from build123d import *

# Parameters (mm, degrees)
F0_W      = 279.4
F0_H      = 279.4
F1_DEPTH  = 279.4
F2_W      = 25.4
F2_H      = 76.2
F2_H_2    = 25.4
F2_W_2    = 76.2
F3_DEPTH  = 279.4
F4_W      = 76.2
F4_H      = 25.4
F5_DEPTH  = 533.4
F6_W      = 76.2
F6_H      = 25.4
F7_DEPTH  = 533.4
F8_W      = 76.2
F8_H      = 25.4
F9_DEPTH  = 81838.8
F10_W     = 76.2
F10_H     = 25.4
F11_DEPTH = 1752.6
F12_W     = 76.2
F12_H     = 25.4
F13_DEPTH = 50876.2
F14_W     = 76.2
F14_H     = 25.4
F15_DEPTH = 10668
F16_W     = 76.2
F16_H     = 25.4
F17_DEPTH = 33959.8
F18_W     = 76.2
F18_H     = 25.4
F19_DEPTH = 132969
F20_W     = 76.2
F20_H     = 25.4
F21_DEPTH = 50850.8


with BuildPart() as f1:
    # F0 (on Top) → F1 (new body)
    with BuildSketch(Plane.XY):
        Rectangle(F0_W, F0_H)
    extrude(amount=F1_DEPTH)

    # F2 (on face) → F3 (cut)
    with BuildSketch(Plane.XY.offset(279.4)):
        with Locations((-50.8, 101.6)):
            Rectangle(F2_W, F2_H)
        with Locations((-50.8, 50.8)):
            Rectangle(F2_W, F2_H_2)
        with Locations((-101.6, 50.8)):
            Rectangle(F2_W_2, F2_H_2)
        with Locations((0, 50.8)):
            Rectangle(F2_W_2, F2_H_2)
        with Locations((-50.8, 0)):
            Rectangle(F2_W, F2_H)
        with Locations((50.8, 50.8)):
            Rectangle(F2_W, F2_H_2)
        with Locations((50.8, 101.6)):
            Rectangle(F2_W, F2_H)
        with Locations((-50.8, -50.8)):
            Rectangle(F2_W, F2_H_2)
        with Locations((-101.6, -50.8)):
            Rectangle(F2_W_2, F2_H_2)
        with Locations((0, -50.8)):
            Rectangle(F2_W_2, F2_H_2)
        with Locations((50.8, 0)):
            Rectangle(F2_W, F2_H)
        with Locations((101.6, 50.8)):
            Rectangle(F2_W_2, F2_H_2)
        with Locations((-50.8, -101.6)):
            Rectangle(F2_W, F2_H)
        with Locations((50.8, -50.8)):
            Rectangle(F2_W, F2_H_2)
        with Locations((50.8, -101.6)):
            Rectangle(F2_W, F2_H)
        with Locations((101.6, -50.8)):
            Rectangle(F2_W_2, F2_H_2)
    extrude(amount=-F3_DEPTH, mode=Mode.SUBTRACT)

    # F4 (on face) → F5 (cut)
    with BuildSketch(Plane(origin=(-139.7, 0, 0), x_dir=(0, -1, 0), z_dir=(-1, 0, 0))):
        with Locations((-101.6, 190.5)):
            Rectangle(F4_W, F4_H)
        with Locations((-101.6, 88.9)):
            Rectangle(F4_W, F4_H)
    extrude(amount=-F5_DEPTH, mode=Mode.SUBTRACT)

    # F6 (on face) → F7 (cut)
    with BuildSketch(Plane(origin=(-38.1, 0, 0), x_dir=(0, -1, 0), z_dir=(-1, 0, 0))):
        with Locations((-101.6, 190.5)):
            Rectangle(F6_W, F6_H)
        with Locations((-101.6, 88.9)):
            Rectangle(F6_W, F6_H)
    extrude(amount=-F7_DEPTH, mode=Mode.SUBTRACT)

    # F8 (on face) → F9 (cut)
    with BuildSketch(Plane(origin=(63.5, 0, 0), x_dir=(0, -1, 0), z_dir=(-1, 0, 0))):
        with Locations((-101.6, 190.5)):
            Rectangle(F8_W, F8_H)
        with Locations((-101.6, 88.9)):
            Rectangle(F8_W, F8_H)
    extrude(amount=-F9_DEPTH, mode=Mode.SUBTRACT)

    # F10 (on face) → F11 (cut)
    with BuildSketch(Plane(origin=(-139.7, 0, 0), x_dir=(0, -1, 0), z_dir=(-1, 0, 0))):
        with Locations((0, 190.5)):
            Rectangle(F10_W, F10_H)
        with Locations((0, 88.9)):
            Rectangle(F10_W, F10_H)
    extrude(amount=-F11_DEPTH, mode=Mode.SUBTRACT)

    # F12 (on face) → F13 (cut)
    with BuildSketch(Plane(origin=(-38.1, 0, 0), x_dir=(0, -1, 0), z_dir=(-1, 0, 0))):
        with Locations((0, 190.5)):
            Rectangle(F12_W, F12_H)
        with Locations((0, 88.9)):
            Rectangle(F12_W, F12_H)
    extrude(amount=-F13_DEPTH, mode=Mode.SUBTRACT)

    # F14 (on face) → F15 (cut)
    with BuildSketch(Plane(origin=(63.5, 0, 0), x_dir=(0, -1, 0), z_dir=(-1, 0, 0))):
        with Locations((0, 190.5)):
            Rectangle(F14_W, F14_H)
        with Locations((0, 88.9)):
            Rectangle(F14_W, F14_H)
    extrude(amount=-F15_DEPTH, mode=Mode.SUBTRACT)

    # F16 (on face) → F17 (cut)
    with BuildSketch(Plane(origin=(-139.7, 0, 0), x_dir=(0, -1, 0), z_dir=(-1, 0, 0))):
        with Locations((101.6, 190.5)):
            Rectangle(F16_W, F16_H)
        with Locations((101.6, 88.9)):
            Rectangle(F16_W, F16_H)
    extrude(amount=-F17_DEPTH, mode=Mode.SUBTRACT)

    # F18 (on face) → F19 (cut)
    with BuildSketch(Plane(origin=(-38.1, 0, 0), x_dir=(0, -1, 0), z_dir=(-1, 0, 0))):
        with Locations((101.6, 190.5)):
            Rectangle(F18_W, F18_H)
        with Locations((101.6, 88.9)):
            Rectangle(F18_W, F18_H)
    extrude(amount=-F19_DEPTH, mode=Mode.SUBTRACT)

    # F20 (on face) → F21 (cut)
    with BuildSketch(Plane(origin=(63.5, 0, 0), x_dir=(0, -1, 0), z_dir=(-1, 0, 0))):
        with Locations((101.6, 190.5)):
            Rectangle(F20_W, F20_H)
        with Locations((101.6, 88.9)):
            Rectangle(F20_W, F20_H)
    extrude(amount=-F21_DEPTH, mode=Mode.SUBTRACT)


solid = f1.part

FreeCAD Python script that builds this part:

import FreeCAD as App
import Part
import Sketcher
from FreeCAD import Vector
Q = App.Units.Quantity

doc = App.newDocument("Part")
body = doc.addObject("PartDesign::Body", "Body")
body.AllowCompound = True

sketch1 = doc.addObject("Sketcher::SketchObject", "Sketch")
body.addObject(sketch1)
sketch1.AttachmentSupport = (doc.XY_Plane, [""])
sketch1.MapMode = "FlatFace"
sketch1.addGeometry([
    Part.LineSegment(Vector(-140, 140, 0), Vector(-140, -140, 0)),
    Part.LineSegment(Vector(-140, -140, 0), Vector(140, -140, 0)),
    Part.LineSegment(Vector(140, -140, 0), Vector(140, 140, 0)),
    Part.LineSegment(Vector(140, 140, 0), Vector(-140, 140, 0)),
], False)
sketch1.addConstraint([
    Sketcher.Constraint("Coincident", 0, 2, 1, 1),
    Sketcher.Constraint("Coincident", 1, 2, 2, 1),
    Sketcher.Constraint("Coincident", 2, 2, 3, 1),
    Sketcher.Constraint("Coincident", 3, 2, 0, 1),
    Sketcher.Constraint("Vertical", 0),
    Sketcher.Constraint("Horizontal", 1),
    Sketcher.Constraint("Vertical", 2),
    Sketcher.Constraint("Horizontal", 3),
    Sketcher.Constraint("Symmetric", 0, 2, 2, 2, -1, 1),
    Sketcher.Constraint("Equal", 3, 0),
    Sketcher.Constraint("DistanceX", 1, 1, 1, 2, Q("11 in")),
])
pad1 = doc.addObject("PartDesign::Pad", "Pad")
body.addObject(pad1)
pad1.Profile = sketch1
pad1.Length = Q("11 in")

sketch2 = doc.addObject("Sketcher::SketchObject", "Sketch001")
body.addObject(sketch2)
sketch2.AttachmentSupport = (doc.XY_Plane, [""])
sketch2.MapMode = "FlatFace"
sketch2.AttachmentOffset = App.Placement(Vector(0, 0, 11 * 25.4), App.Rotation())
sketch2.addGeometry([
    Part.LineSegment(Vector(-38, -64, 0), Vector(38, -64, 0)),
    Part.LineSegment(Vector(38, -64, 0), Vector(38, -140, 0)),
    Part.LineSegment(Vector(38, -140, 0), Vector(64, -140, 0)),
    Part.LineSegment(Vector(64, -140, 0), Vector(64, -64, 0)),
    Part.LineSegment(Vector(64, -64, 0), Vector(140, -64, 0)),
    Part.LineSegment(Vector(140, -64, 0), Vector(140, -38, 0)),
    Part.LineSegment(Vector(140, -38, 0), Vector(64, -38, 0)),
    Part.LineSegment(Vector(64, -38, 0), Vector(64, 38, 0)),
    Part.LineSegment(Vector(64, 38, 0), Vector(140, 38, 0)),
    Part.LineSegment(Vector(140, 38, 0), Vector(140, 64, 0)),
    Part.LineSegment(Vector(140, 64, 0), Vector(64, 64, 0)),
    Part.LineSegment(Vector(64, 64, 0), Vector(64, 140, 0)),
    Part.LineSegment(Vector(64, 140, 0), Vector(38, 140, 0)),
    Part.LineSegment(Vector(38, 140, 0), Vector(38, 64, 0)),
    Part.LineSegment(Vector(38, 64, 0), Vector(-38, 64, 0)),
    Part.LineSegment(Vector(-38, 64, 0), Vector(-38, 140, 0)),
    Part.LineSegment(Vector(-38, 140, 0), Vector(-64, 140, 0)),
    Part.LineSegment(Vector(-64, 140, 0), Vector(-64, 64, 0)),
    Part.LineSegment(Vector(-64, 64, 0), Vector(-140, 64, 0)),
    Part.LineSegment(Vector(-140, 64, 0), Vector(-140, 38, 0)),
    Part.LineSegment(Vector(-140, 38, 0), Vector(-64, 38, 0)),
    Part.LineSegment(Vector(-64, 38, 0), Vector(-64, -38, 0)),
    Part.LineSegment(Vector(-64, -38, 0), Vector(-140, -38, 0)),
    Part.LineSegment(Vector(-140, -38, 0), Vector(-140, -64, 0)),
    Part.LineSegment(Vector(-140, -64, 0), Vector(-64, -64, 0)),
    Part.LineSegment(Vector(-64, -64, 0), Vector(-64, -140, 0)),
    Part.LineSegment(Vector(-64, -140, 0), Vector(-38, -140, 0)),
    Part.LineSegment(Vector(-38, -140, 0), Vector(-38, -64, 0)),
    Part.LineSegment(Vector(38, -38, 0), Vector(-38, -38, 0)),
    Part.LineSegment(Vector(-38, -38, 0), Vector(-38, 38, 0)),
    Part.LineSegment(Vector(-38, 38, 0), Vector(38, 38, 0)),
    Part.LineSegment(Vector(38, 38, 0), Vector(38, -38, 0)),
], False)
sketch2.addConstraint([
    Sketcher.Constraint("Coincident", 0, 2, 1, 1),
    Sketcher.Constraint("Coincident", 1, 2, 2, 1),
    Sketcher.Constraint("Coincident", 2, 2, 3, 1),
    Sketcher.Constraint("Coincident", 3, 2, 4, 1),
    Sketcher.Constraint("Coincident", 4, 2, 5, 1),
    Sketcher.Constraint("Coincident", 5, 2, 6, 1),
    Sketcher.Constraint("Coincident", 6, 2, 7, 1),
    Sketcher.Constraint("Coincident", 7, 2, 8, 1),
    Sketcher.Constraint("Coincident", 8, 2, 9, 1),
    Sketcher.Constraint("Coincident", 9, 2, 10, 1),
    Sketcher.Constraint("Coincident", 10, 2, 11, 1),
    Sketcher.Constraint("Coincident", 11, 2, 12, 1),
    Sketcher.Constraint("Coincident", 12, 2, 13, 1),
    Sketcher.Constraint("Coincident", 13, 2, 14, 1),
    Sketcher.Constraint("Coincident", 14, 2, 15, 1),
    Sketcher.Constraint("Coincident", 15, 2, 16, 1),
    Sketcher.Constraint("Coincident", 16, 2, 17, 1),
    Sketcher.Constraint("Coincident", 17, 2, 18, 1),
    Sketcher.Constraint("Coincident", 18, 2, 19, 1),
    Sketcher.Constraint("Coincident", 19, 2, 20, 1),
    Sketcher.Constraint("Coincident", 20, 2, 21, 1),
    Sketcher.Constraint("Coincident", 21, 2, 22, 1),
    Sketcher.Constraint("Coincident", 22, 2, 23, 1),
    Sketcher.Constraint("Coincident", 23, 2, 24, 1),
    Sketcher.Constraint("Coincident", 24, 2, 25, 1),
    Sketcher.Constraint("Coincident", 25, 2, 26, 1),
    Sketcher.Constraint("Coincident", 26, 2, 27, 1),
    Sketcher.Constraint("Coincident", 27, 2, 0, 1),
    Sketcher.Constraint("Coincident", 28, 2, 29, 1),
    Sketcher.Constraint("Coincident", 29, 2, 30, 1),
    Sketcher.Constraint("Coincident", 30, 2, 31, 1),
    Sketcher.Constraint("Coincident", 31, 2, 28, 1),
    Sketcher.Constraint("Horizontal", 0),
    Sketcher.Constraint("Vertical", 1),
    Sketcher.Constraint("Horizontal", 2),
    Sketcher.Constraint("Vertical", 3),
    Sketcher.Constraint("Horizontal", 4),
    Sketcher.Constraint("Vertical", 5),
    Sketcher.Constraint("Horizontal", 6),
    Sketcher.Constraint("Vertical", 7),
    Sketcher.Constraint("Horizontal", 8),
    Sketcher.Constraint("Vertical", 9),
    Sketcher.Constraint("Horizontal", 10),
    Sketcher.Constraint("Vertical", 11),
    Sketcher.Constraint("Horizontal", 12),
    Sketcher.Constraint("Vertical", 13),
    Sketcher.Constraint("Horizontal", 14),
    Sketcher.Constraint("Vertical", 15),
    Sketcher.Constraint("Horizontal", 16),
    Sketcher.Constraint("Vertical", 17),
    Sketcher.Constraint("Horizontal", 18),
    Sketcher.Constraint("Vertical", 19),
    Sketcher.Constraint("Horizontal", 20),
    Sketcher.Constraint("Vertical", 21),
    Sketcher.Constraint("Horizontal", 22),
    Sketcher.Constraint("Vertical", 23),
    Sketcher.Constraint("Horizontal", 24),
    Sketcher.Constraint("Vertical", 25),
    Sketcher.Constraint("Horizontal", 26),
    Sketcher.Constraint("Vertical", 27),
    Sketcher.Constraint("Horizontal", 28),
    Sketcher.Constraint("Vertical", 29),
    Sketcher.Constraint("Horizontal", 30),
    Sketcher.Constraint("Vertical", 31),
    Sketcher.Constraint("Symmetric", 0, 2, 14, 2, -1, 1),
    Sketcher.Constraint("Symmetric", 2, 2, 16, 2, -1, 1),
    Sketcher.Constraint("Symmetric", 4, 2, 18, 2, -1, 1),
    Sketcher.Constraint("Symmetric", 6, 2, 20, 2, -1, 1),
    Sketcher.Constraint("Symmetric", 8, 2, 22, 2, -1, 1),
    Sketcher.Constraint("Symmetric", 10, 2, 24, 2, -1, 1),
    Sketcher.Constraint("Symmetric", 12, 2, 26, 2, -1, 1),
    Sketcher.Constraint("Symmetric", 28, 2, 30, 2, -1, 1),
    Sketcher.Constraint("Symmetric", 12, 2, 15, 2, -2),
    Sketcher.Constraint("Symmetric", 10, 2, 17, 2, -2),
    Sketcher.Constraint("Symmetric", 8, 2, 19, 2, -2),
    Sketcher.Constraint("Horizontal", 0, 2, 3, 2),
    Sketcher.Constraint("Horizontal", 22, 2, 28, 2),
    Sketcher.Constraint("Vertical", 3, 2, 6, 2),
    Sketcher.Constraint("Vertical", 27, 2, 28, 2),
    Sketcher.Constraint("Equal", 0, 4),
    Sketcher.Constraint("Equal", 30, 1),
    Sketcher.Constraint("Equal", 26, 5),
    Sketcher.Constraint("Equal", 3, 7),
    Sketcher.Constraint("DistanceX", 0, 1, 0, 2, Q("3 in")),
    Sketcher.Constraint("DistanceX", 2, 1, 2, 2, Q("1 in")),
])
pocket1 = doc.addObject("PartDesign::Pocket", "Pocket")
body.addObject(pocket1)
pocket1.Profile = sketch2
pocket1.Length = Q("11 in")

sketch3 = doc.addObject("Sketcher::SketchObject", "Sketch002")
body.addObject(sketch3)
sketch3.AttachmentSupport = (doc.YZ_Plane, [""])
sketch3.MapMode = "FlatFace"
sketch3.AttachmentOffset = App.Placement(Vector(0, 0, -5.5 * 25.4), App.Rotation())
sketch3.addGeometry([
    Part.LineSegment(Vector(140, 203, 0), Vector(140, 178, 0)),
    Part.LineSegment(Vector(140, 178, 0), Vector(64, 178, 0)),
    Part.LineSegment(Vector(64, 178, 0), Vector(64, 203, 0)),
    Part.LineSegment(Vector(64, 203, 0), Vector(140, 203, 0)),
    Part.LineSegment(Vector(140, 102, 0), Vector(140, 76, 0)),
    Part.LineSegment(Vector(140, 76, 0), Vector(64, 76, 0)),
    Part.LineSegment(Vector(64, 76, 0), Vector(64, 102, 0)),
    Part.LineSegment(Vector(64, 102, 0), Vector(140, 102, 0)),
], False)
sketch3.addConstraint([
    Sketcher.Constraint("Coincident", 0, 2, 1, 1),
    Sketcher.Constraint("Coincident", 1, 2, 2, 1),
    Sketcher.Constraint("Coincident", 2, 2, 3, 1),
    Sketcher.Constraint("Coincident", 3, 2, 0, 1),
    Sketcher.Constraint("Coincident", 4, 2, 5, 1),
    Sketcher.Constraint("Coincident", 5, 2, 6, 1),
    Sketcher.Constraint("Coincident", 6, 2, 7, 1),
    Sketcher.Constraint("Coincident", 7, 2, 4, 1),
    Sketcher.Constraint("Vertical", 0),
    Sketcher.Constraint("Horizontal", 1),
    Sketcher.Constraint("Vertical", 2),
    Sketcher.Constraint("Horizontal", 3),
    Sketcher.Constraint("Vertical", 4),
    Sketcher.Constraint("Horizontal", 5),
    Sketcher.Constraint("Vertical", 6),
    Sketcher.Constraint("Horizontal", 7),
    Sketcher.Constraint("Vertical", 3, 2, 4, 2),
    Sketcher.Constraint("Vertical", 2, 2, 5, 2),
    Sketcher.Constraint("Equal", 2, 4),
    Sketcher.Constraint("DistanceX", 1, 2, 1, 1, Q("3 in")),
    Sketcher.Constraint("DistanceY", 0, 2, 0, 1, Q("1 in")),
    Sketcher.Constraint("DistanceY", -1, 1, 0, 2, Q("7 in")),
    Sketcher.Constraint("DistanceY", -1, 1, 4, 2, Q("3 in")),
    Sketcher.Constraint("DistanceX", -1, 1, 0, 2, Q("5.5 in")),
])
pocket2 = doc.addObject("PartDesign::Pocket", "Pocket001")
body.addObject(pocket2)
pocket2.Profile = sketch3
pocket2.Length = Q("21 in")
pocket2.Reversed = True

sketch4 = doc.addObject("Sketcher::SketchObject", "Sketch003")
body.addObject(sketch4)
sketch4.AttachmentSupport = (doc.YZ_Plane, [""])
sketch4.MapMode = "FlatFace"
sketch4.AttachmentOffset = App.Placement(Vector(0, 0, -1.5 * 25.4), App.Rotation())
sketch4.addGeometry([
    Part.LineSegment(Vector(140, 203, 0), Vector(140, 178, 0)),
    Part.LineSegment(Vector(140, 178, 0), Vector(64, 178, 0)),
    Part.LineSegment(Vector(64, 178, 0), Vector(64, 203, 0)),
    Part.LineSegment(Vector(64, 203, 0), Vector(140, 203, 0)),
    Part.LineSegment(Vector(140, 102, 0), Vector(140, 76, 0)),
    Part.LineSegment(Vector(140, 76, 0), Vector(64, 76, 0)),
    Part.LineSegment(Vector(64, 76, 0), Vector(64, 102, 0)),
    Part.LineSegment(Vector(64, 102, 0), Vector(140, 102, 0)),
], False)
sketch4.addConstraint([
    Sketcher.Constraint("Coincident", 0, 2, 1, 1),
    Sketcher.Constraint("Coincident", 1, 2, 2, 1),
    Sketcher.Constraint("Coincident", 2, 2, 3, 1),
    Sketcher.Constraint("Coincident", 3, 2, 0, 1),
    Sketcher.Constraint("Coincident", 4, 2, 5, 1),
    Sketcher.Constraint("Coincident", 5, 2, 6, 1),
    Sketcher.Constraint("Coincident", 6, 2, 7, 1),
    Sketcher.Constraint("Coincident", 7, 2, 4, 1),
    Sketcher.Constraint("Vertical", 0),
    Sketcher.Constraint("Horizontal", 1),
    Sketcher.Constraint("Vertical", 2),
    Sketcher.Constraint("Horizontal", 3),
    Sketcher.Constraint("Vertical", 4),
    Sketcher.Constraint("Horizontal", 5),
    Sketcher.Constraint("Vertical", 6),
    Sketcher.Constraint("Horizontal", 7),
    Sketcher.Constraint("Vertical", 3, 2, 4, 2),
    Sketcher.Constraint("Vertical", 2, 2, 5, 2),
    Sketcher.Constraint("Equal", 2, 4),
    Sketcher.Constraint("DistanceX", 1, 2, 1, 1, Q("3 in")),
    Sketcher.Constraint("DistanceY", 0, 2, 0, 1, Q("1 in")),
    Sketcher.Constraint("DistanceY", -1, 1, 0, 2, Q("7 in")),
    Sketcher.Constraint("DistanceY", -1, 1, 4, 2, Q("3 in")),
    Sketcher.Constraint("DistanceX", -1, 1, 0, 2, Q("5.5 in")),
])
pocket3 = doc.addObject("PartDesign::Pocket", "Pocket002")
body.addObject(pocket3)
pocket3.Profile = sketch4
pocket3.Length = Q("21 in")
pocket3.Reversed = True

sketch5 = doc.addObject("Sketcher::SketchObject", "Sketch004")
body.addObject(sketch5)
sketch5.AttachmentSupport = (doc.YZ_Plane, [""])
sketch5.MapMode = "FlatFace"
sketch5.AttachmentOffset = App.Placement(Vector(0, 0, 2.5 * 25.4), App.Rotation())
sketch5.addGeometry([
    Part.LineSegment(Vector(140, 203, 0), Vector(140, 178, 0)),
    Part.LineSegment(Vector(140, 178, 0), Vector(64, 178, 0)),
    Part.LineSegment(Vector(64, 178, 0), Vector(64, 203, 0)),
    Part.LineSegment(Vector(64, 203, 0), Vector(140, 203, 0)),
    Part.LineSegment(Vector(140, 102, 0), Vector(140, 76, 0)),
    Part.LineSegment(Vector(140, 76, 0), Vector(64, 76, 0)),
    Part.LineSegment(Vector(64, 76, 0), Vector(64, 102, 0)),
    Part.LineSegment(Vector(64, 102, 0), Vector(140, 102, 0)),
], False)
sketch5.addConstraint([
    Sketcher.Constraint("Coincident", 0, 2, 1, 1),
    Sketcher.Constraint("Coincident", 1, 2, 2, 1),
    Sketcher.Constraint("Coincident", 2, 2, 3, 1),
    Sketcher.Constraint("Coincident", 3, 2, 0, 1),
    Sketcher.Constraint("Coincident", 4, 2, 5, 1),
    Sketcher.Constraint("Coincident", 5, 2, 6, 1),
    Sketcher.Constraint("Coincident", 6, 2, 7, 1),
    Sketcher.Constraint("Coincident", 7, 2, 4, 1),
    Sketcher.Constraint("Vertical", 0),
    Sketcher.Constraint("Horizontal", 1),
    Sketcher.Constraint("Vertical", 2),
    Sketcher.Constraint("Horizontal", 3),
    Sketcher.Constraint("Vertical", 4),
    Sketcher.Constraint("Horizontal", 5),
    Sketcher.Constraint("Vertical", 6),
    Sketcher.Constraint("Horizontal", 7),
    Sketcher.Constraint("Vertical", 3, 2, 4, 2),
    Sketcher.Constraint("Vertical", 2, 2, 5, 2),
    Sketcher.Constraint("Equal", 2, 4),
    Sketcher.Constraint("DistanceX", 1, 2, 1, 1, Q("3 in")),
    Sketcher.Constraint("DistanceY", 0, 2, 0, 1, Q("1 in")),
    Sketcher.Constraint("DistanceY", -1, 1, 0, 2, Q("7 in")),
    Sketcher.Constraint("DistanceY", -1, 1, 4, 2, Q("3 in")),
    Sketcher.Constraint("DistanceX", -1, 1, 0, 2, Q("5.5 in")),
])
pocket4 = doc.addObject("PartDesign::Pocket", "Pocket003")
body.addObject(pocket4)
pocket4.Profile = sketch5
pocket4.Length = Q("3222 in")
pocket4.Reversed = True

sketch6 = doc.addObject("Sketcher::SketchObject", "Sketch005")
body.addObject(sketch6)
sketch6.AttachmentSupport = (doc.YZ_Plane, [""])
sketch6.MapMode = "FlatFace"
sketch6.AttachmentOffset = App.Placement(Vector(0, 0, -5.5 * 25.4), App.Rotation())
sketch6.addGeometry([
    Part.LineSegment(Vector(38, 203, 0), Vector(38, 178, 0)),
    Part.LineSegment(Vector(38, 178, 0), Vector(-38, 178, 0)),
    Part.LineSegment(Vector(-38, 178, 0), Vector(-38, 203, 0)),
    Part.LineSegment(Vector(-38, 203, 0), Vector(38, 203, 0)),
    Part.LineSegment(Vector(38, 102, 0), Vector(38, 76, 0)),
    Part.LineSegment(Vector(38, 76, 0), Vector(-38, 76, 0)),
    Part.LineSegment(Vector(-38, 76, 0), Vector(-38, 102, 0)),
    Part.LineSegment(Vector(-38, 102, 0), Vector(38, 102, 0)),
], False)
sketch6.addConstraint([
    Sketcher.Constraint("Coincident", 0, 2, 1, 1),
    Sketcher.Constraint("Coincident", 1, 2, 2, 1),
    Sketcher.Constraint("Coincident", 2, 2, 3, 1),
    Sketcher.Constraint("Coincident", 3, 2, 0, 1),
    Sketcher.Constraint("Coincident", 4, 2, 5, 1),
    Sketcher.Constraint("Coincident", 5, 2, 6, 1),
    Sketcher.Constraint("Coincident", 6, 2, 7, 1),
    Sketcher.Constraint("Coincident", 7, 2, 4, 1),
    Sketcher.Constraint("Vertical", 0),
    Sketcher.Constraint("Horizontal", 1),
    Sketcher.Constraint("Vertical", 2),
    Sketcher.Constraint("Horizontal", 3),
    Sketcher.Constraint("Vertical", 4),
    Sketcher.Constraint("Horizontal", 5),
    Sketcher.Constraint("Vertical", 6),
    Sketcher.Constraint("Horizontal", 7),
    Sketcher.Constraint("Vertical", 3, 2, 4, 2),
    Sketcher.Constraint("Vertical", 2, 2, 5, 2),
    Sketcher.Constraint("Equal", 2, 4),
    Sketcher.Constraint("DistanceX", 1, 2, 1, 1, Q("3 in")),
    Sketcher.Constraint("DistanceY", 0, 2, 0, 1, Q("1 in")),
    Sketcher.Constraint("DistanceY", -1, 1, 0, 2, Q("7 in")),
    Sketcher.Constraint("DistanceY", -1, 1, 4, 2, Q("3 in")),
    Sketcher.Constraint("DistanceX", -1, 1, 0, 2, Q("1.5 in")),
])
pocket5 = doc.addObject("PartDesign::Pocket", "Pocket004")
body.addObject(pocket5)
pocket5.Profile = sketch6
pocket5.Length = Q("69 in")
pocket5.Reversed = True

sketch7 = doc.addObject("Sketcher::SketchObject", "Sketch006")
body.addObject(sketch7)
sketch7.AttachmentSupport = (doc.YZ_Plane, [""])
sketch7.MapMode = "FlatFace"
sketch7.AttachmentOffset = App.Placement(Vector(0, 0, -1.5 * 25.4), App.Rotation())
sketch7.addGeometry([
    Part.LineSegment(Vector(38, 203, 0), Vector(38, 178, 0)),
    Part.LineSegment(Vector(38, 178, 0), Vector(-38, 178, 0)),
    Part.LineSegment(Vector(-38, 178, 0), Vector(-38, 203, 0)),
    Part.LineSegment(Vector(-38, 203, 0), Vector(38, 203, 0)),
    Part.LineSegment(Vector(38, 102, 0), Vector(38, 76, 0)),
    Part.LineSegment(Vector(38, 76, 0), Vector(-38, 76, 0)),
    Part.LineSegment(Vector(-38, 76, 0), Vector(-38, 102, 0)),
    Part.LineSegment(Vector(-38, 102, 0), Vector(38, 102, 0)),
], False)
sketch7.addConstraint([
    Sketcher.Constraint("Coincident", 0, 2, 1, 1),
    Sketcher.Constraint("Coincident", 1, 2, 2, 1),
    Sketcher.Constraint("Coincident", 2, 2, 3, 1),
    Sketcher.Constraint("Coincident", 3, 2, 0, 1),
    Sketcher.Constraint("Coincident", 4, 2, 5, 1),
    Sketcher.Constraint("Coincident", 5, 2, 6, 1),
    Sketcher.Constraint("Coincident", 6, 2, 7, 1),
    Sketcher.Constraint("Coincident", 7, 2, 4, 1),
    Sketcher.Constraint("Vertical", 0),
    Sketcher.Constraint("Horizontal", 1),
    Sketcher.Constraint("Vertical", 2),
    Sketcher.Constraint("Horizontal", 3),
    Sketcher.Constraint("Vertical", 4),
    Sketcher.Constraint("Horizontal", 5),
    Sketcher.Constraint("Vertical", 6),
    Sketcher.Constraint("Horizontal", 7),
    Sketcher.Constraint("Vertical", 3, 2, 4, 2),
    Sketcher.Constraint("Vertical", 2, 2, 5, 2),
    Sketcher.Constraint("Equal", 2, 4),
    Sketcher.Constraint("DistanceX", 1, 2, 1, 1, Q("3 in")),
    Sketcher.Constraint("DistanceY", 0, 2, 0, 1, Q("1 in")),
    Sketcher.Constraint("DistanceY", -1, 1, 0, 2, Q("7 in")),
    Sketcher.Constraint("DistanceY", -1, 1, 4, 2, Q("3 in")),
    Sketcher.Constraint("DistanceX", -1, 1, 0, 2, Q("1.5 in")),
])
pocket6 = doc.addObject("PartDesign::Pocket", "Pocket005")
body.addObject(pocket6)
pocket6.Profile = sketch7
pocket6.Length = Q("2003 in")
pocket6.Reversed = True

sketch8 = doc.addObject("Sketcher::SketchObject", "Sketch007")
body.addObject(sketch8)
sketch8.AttachmentSupport = (doc.YZ_Plane, [""])
sketch8.MapMode = "FlatFace"
sketch8.AttachmentOffset = App.Placement(Vector(0, 0, 2.5 * 25.4), App.Rotation())
sketch8.addGeometry([
    Part.LineSegment(Vector(38, 203, 0), Vector(38, 178, 0)),
    Part.LineSegment(Vector(38, 178, 0), Vector(-38, 178, 0)),
    Part.LineSegment(Vector(-38, 178, 0), Vector(-38, 203, 0)),
    Part.LineSegment(Vector(-38, 203, 0), Vector(38, 203, 0)),
    Part.LineSegment(Vector(38, 102, 0), Vector(38, 76, 0)),
    Part.LineSegment(Vector(38, 76, 0), Vector(-38, 76, 0)),
    Part.LineSegment(Vector(-38, 76, 0), Vector(-38, 102, 0)),
    Part.LineSegment(Vector(-38, 102, 0), Vector(38, 102, 0)),
], False)
sketch8.addConstraint([
    Sketcher.Constraint("Coincident", 0, 2, 1, 1),
    Sketcher.Constraint("Coincident", 1, 2, 2, 1),
    Sketcher.Constraint("Coincident", 2, 2, 3, 1),
    Sketcher.Constraint("Coincident", 3, 2, 0, 1),
    Sketcher.Constraint("Coincident", 4, 2, 5, 1),
    Sketcher.Constraint("Coincident", 5, 2, 6, 1),
    Sketcher.Constraint("Coincident", 6, 2, 7, 1),
    Sketcher.Constraint("Coincident", 7, 2, 4, 1),
    Sketcher.Constraint("Vertical", 0),
    Sketcher.Constraint("Horizontal", 1),
    Sketcher.Constraint("Vertical", 2),
    Sketcher.Constraint("Horizontal", 3),
    Sketcher.Constraint("Vertical", 4),
    Sketcher.Constraint("Horizontal", 5),
    Sketcher.Constraint("Vertical", 6),
    Sketcher.Constraint("Horizontal", 7),
    Sketcher.Constraint("Vertical", 3, 2, 4, 2),
    Sketcher.Constraint("Vertical", 2, 2, 5, 2),
    Sketcher.Constraint("Equal", 2, 4),
    Sketcher.Constraint("DistanceX", 1, 2, 1, 1, Q("3 in")),
    Sketcher.Constraint("DistanceY", 0, 2, 0, 1, Q("1 in")),
    Sketcher.Constraint("DistanceY", -1, 1, 0, 2, Q("7 in")),
    Sketcher.Constraint("DistanceY", -1, 1, 4, 2, Q("3 in")),
    Sketcher.Constraint("DistanceX", -1, 1, 0, 2, Q("1.5 in")),
])
pocket7 = doc.addObject("PartDesign::Pocket", "Pocket006")
body.addObject(pocket7)
pocket7.Profile = sketch8
pocket7.Length = Q("420 in")
pocket7.Reversed = True

sketch9 = doc.addObject("Sketcher::SketchObject", "Sketch008")
body.addObject(sketch9)
sketch9.AttachmentSupport = (doc.YZ_Plane, [""])
sketch9.MapMode = "FlatFace"
sketch9.AttachmentOffset = App.Placement(Vector(0, 0, -5.5 * 25.4), App.Rotation())
sketch9.addGeometry([
    Part.LineSegment(Vector(-64, 203, 0), Vector(-64, 178, 0)),
    Part.LineSegment(Vector(-64, 178, 0), Vector(-140, 178, 0)),
    Part.LineSegment(Vector(-140, 178, 0), Vector(-140, 203, 0)),
    Part.LineSegment(Vector(-140, 203, 0), Vector(-64, 203, 0)),
    Part.LineSegment(Vector(-64, 102, 0), Vector(-64, 76, 0)),
    Part.LineSegment(Vector(-64, 76, 0), Vector(-140, 76, 0)),
    Part.LineSegment(Vector(-140, 76, 0), Vector(-140, 102, 0)),
    Part.LineSegment(Vector(-140, 102, 0), Vector(-64, 102, 0)),
], False)
sketch9.addConstraint([
    Sketcher.Constraint("Coincident", 0, 2, 1, 1),
    Sketcher.Constraint("Coincident", 1, 2, 2, 1),
    Sketcher.Constraint("Coincident", 2, 2, 3, 1),
    Sketcher.Constraint("Coincident", 3, 2, 0, 1),
    Sketcher.Constraint("Coincident", 4, 2, 5, 1),
    Sketcher.Constraint("Coincident", 5, 2, 6, 1),
    Sketcher.Constraint("Coincident", 6, 2, 7, 1),
    Sketcher.Constraint("Coincident", 7, 2, 4, 1),
    Sketcher.Constraint("Vertical", 0),
    Sketcher.Constraint("Horizontal", 1),
    Sketcher.Constraint("Vertical", 2),
    Sketcher.Constraint("Horizontal", 3),
    Sketcher.Constraint("Vertical", 4),
    Sketcher.Constraint("Horizontal", 5),
    Sketcher.Constraint("Vertical", 6),
    Sketcher.Constraint("Horizontal", 7),
    Sketcher.Constraint("Vertical", 3, 2, 4, 2),
    Sketcher.Constraint("Vertical", 2, 2, 5, 2),
    Sketcher.Constraint("Equal", 2, 4),
    Sketcher.Constraint("DistanceX", 1, 2, 1, 1, Q("3 in")),
    Sketcher.Constraint("DistanceY", 0, 2, 0, 1, Q("1 in")),
    Sketcher.Constraint("DistanceY", -1, 1, 0, 2, Q("7 in")),
    Sketcher.Constraint("DistanceY", -1, 1, 4, 2, Q("3 in")),
    Sketcher.Constraint("DistanceX", 0, 2, -1, 1, Q("2.5 in")),
])
pocket8 = doc.addObject("PartDesign::Pocket", "Pocket007")
body.addObject(pocket8)
pocket8.Profile = sketch9
pocket8.Length = Q("1337 in")
pocket8.Reversed = True

sketch10 = doc.addObject("Sketcher::SketchObject", "Sketch009")
body.addObject(sketch10)
sketch10.AttachmentSupport = (doc.YZ_Plane, [""])
sketch10.MapMode = "FlatFace"
sketch10.AttachmentOffset = App.Placement(Vector(0, 0, -1.5 * 25.4), App.Rotation())
sketch10.addGeometry([
    Part.LineSegment(Vector(-64, 203, 0), Vector(-64, 178, 0)),
    Part.LineSegment(Vector(-64, 178, 0), Vector(-140, 178, 0)),
    Part.LineSegment(Vector(-140, 178, 0), Vector(-140, 203, 0)),
    Part.LineSegment(Vector(-140, 203, 0), Vector(-64, 203, 0)),
    Part.LineSegment(Vector(-64, 102, 0), Vector(-64, 76, 0)),
    Part.LineSegment(Vector(-64, 76, 0), Vector(-140, 76, 0)),
    Part.LineSegment(Vector(-140, 76, 0), Vector(-140, 102, 0)),
    Part.LineSegment(Vector(-140, 102, 0), Vector(-64, 102, 0)),
], False)
sketch10.addConstraint([
    Sketcher.Constraint("Coincident", 0, 2, 1, 1),
    Sketcher.Constraint("Coincident", 1, 2, 2, 1),
    Sketcher.Constraint("Coincident", 2, 2, 3, 1),
    Sketcher.Constraint("Coincident", 3, 2, 0, 1),
    Sketcher.Constraint("Coincident", 4, 2, 5, 1),
    Sketcher.Constraint("Coincident", 5, 2, 6, 1),
    Sketcher.Constraint("Coincident", 6, 2, 7, 1),
    Sketcher.Constraint("Coincident", 7, 2, 4, 1),
    Sketcher.Constraint("Vertical", 0),
    Sketcher.Constraint("Horizontal", 1),
    Sketcher.Constraint("Vertical", 2),
    Sketcher.Constraint("Horizontal", 3),
    Sketcher.Constraint("Vertical", 4),
    Sketcher.Constraint("Horizontal", 5),
    Sketcher.Constraint("Vertical", 6),
    Sketcher.Constraint("Horizontal", 7),
    Sketcher.Constraint("Vertical", 3, 2, 4, 2),
    Sketcher.Constraint("Vertical", 2, 2, 5, 2),
    Sketcher.Constraint("Equal", 2, 4),
    Sketcher.Constraint("DistanceX", 1, 2, 1, 1, Q("3 in")),
    Sketcher.Constraint("DistanceY", 0, 2, 0, 1, Q("1 in")),
    Sketcher.Constraint("DistanceY", -1, 1, 0, 2, Q("7 in")),
    Sketcher.Constraint("DistanceY", -1, 1, 4, 2, Q("3 in")),
    Sketcher.Constraint("DistanceX", 0, 2, -1, 1, Q("2.5 in")),
])
pocket9 = doc.addObject("PartDesign::Pocket", "Pocket008")
body.addObject(pocket9)
pocket9.Profile = sketch10
pocket9.Length = Q("5235 in")
pocket9.Reversed = True

sketch11 = doc.addObject("Sketcher::SketchObject", "Sketch010")
body.addObject(sketch11)
sketch11.AttachmentSupport = (doc.YZ_Plane, [""])
sketch11.MapMode = "FlatFace"
sketch11.AttachmentOffset = App.Placement(Vector(0, 0, 2.5 * 25.4), App.Rotation())
sketch11.addGeometry([
    Part.LineSegment(Vector(-64, 203, 0), Vector(-64, 178, 0)),
    Part.LineSegment(Vector(-64, 178, 0), Vector(-140, 178, 0)),
    Part.LineSegment(Vector(-140, 178, 0), Vector(-140, 203, 0)),
    Part.LineSegment(Vector(-140, 203, 0), Vector(-64, 203, 0)),
    Part.LineSegment(Vector(-64, 102, 0), Vector(-64, 76, 0)),
    Part.LineSegment(Vector(-64, 76, 0), Vector(-140, 76, 0)),
    Part.LineSegment(Vector(-140, 76, 0), Vector(-140, 102, 0)),
    Part.LineSegment(Vector(-140, 102, 0), Vector(-64, 102, 0)),
], False)
sketch11.addConstraint([
    Sketcher.Constraint("Coincident", 0, 2, 1, 1),
    Sketcher.Constraint("Coincident", 1, 2, 2, 1),
    Sketcher.Constraint("Coincident", 2, 2, 3, 1),
    Sketcher.Constraint("Coincident", 3, 2, 0, 1),
    Sketcher.Constraint("Coincident", 4, 2, 5, 1),
    Sketcher.Constraint("Coincident", 5, 2, 6, 1),
    Sketcher.Constraint("Coincident", 6, 2, 7, 1),
    Sketcher.Constraint("Coincident", 7, 2, 4, 1),
    Sketcher.Constraint("Vertical", 0),
    Sketcher.Constraint("Horizontal", 1),
    Sketcher.Constraint("Vertical", 2),
    Sketcher.Constraint("Horizontal", 3),
    Sketcher.Constraint("Vertical", 4),
    Sketcher.Constraint("Horizontal", 5),
    Sketcher.Constraint("Vertical", 6),
    Sketcher.Constraint("Horizontal", 7),
    Sketcher.Constraint("Vertical", 3, 2, 4, 2),
    Sketcher.Constraint("Vertical", 2, 2, 5, 2),
    Sketcher.Constraint("Equal", 2, 4),
    Sketcher.Constraint("DistanceX", 1, 2, 1, 1, Q("3 in")),
    Sketcher.Constraint("DistanceY", 0, 2, 0, 1, Q("1 in")),
    Sketcher.Constraint("DistanceY", -1, 1, 0, 2, Q("7 in")),
    Sketcher.Constraint("DistanceY", -1, 1, 4, 2, Q("3 in")),
    Sketcher.Constraint("DistanceX", 0, 2, -1, 1, Q("2.5 in")),
])
pocket10 = doc.addObject("PartDesign::Pocket", "Pocket009")
body.addObject(pocket10)
pocket10.Profile = sketch11
pocket10.Length = Q("2002 in")
pocket10.Reversed = True

doc.recompute()
